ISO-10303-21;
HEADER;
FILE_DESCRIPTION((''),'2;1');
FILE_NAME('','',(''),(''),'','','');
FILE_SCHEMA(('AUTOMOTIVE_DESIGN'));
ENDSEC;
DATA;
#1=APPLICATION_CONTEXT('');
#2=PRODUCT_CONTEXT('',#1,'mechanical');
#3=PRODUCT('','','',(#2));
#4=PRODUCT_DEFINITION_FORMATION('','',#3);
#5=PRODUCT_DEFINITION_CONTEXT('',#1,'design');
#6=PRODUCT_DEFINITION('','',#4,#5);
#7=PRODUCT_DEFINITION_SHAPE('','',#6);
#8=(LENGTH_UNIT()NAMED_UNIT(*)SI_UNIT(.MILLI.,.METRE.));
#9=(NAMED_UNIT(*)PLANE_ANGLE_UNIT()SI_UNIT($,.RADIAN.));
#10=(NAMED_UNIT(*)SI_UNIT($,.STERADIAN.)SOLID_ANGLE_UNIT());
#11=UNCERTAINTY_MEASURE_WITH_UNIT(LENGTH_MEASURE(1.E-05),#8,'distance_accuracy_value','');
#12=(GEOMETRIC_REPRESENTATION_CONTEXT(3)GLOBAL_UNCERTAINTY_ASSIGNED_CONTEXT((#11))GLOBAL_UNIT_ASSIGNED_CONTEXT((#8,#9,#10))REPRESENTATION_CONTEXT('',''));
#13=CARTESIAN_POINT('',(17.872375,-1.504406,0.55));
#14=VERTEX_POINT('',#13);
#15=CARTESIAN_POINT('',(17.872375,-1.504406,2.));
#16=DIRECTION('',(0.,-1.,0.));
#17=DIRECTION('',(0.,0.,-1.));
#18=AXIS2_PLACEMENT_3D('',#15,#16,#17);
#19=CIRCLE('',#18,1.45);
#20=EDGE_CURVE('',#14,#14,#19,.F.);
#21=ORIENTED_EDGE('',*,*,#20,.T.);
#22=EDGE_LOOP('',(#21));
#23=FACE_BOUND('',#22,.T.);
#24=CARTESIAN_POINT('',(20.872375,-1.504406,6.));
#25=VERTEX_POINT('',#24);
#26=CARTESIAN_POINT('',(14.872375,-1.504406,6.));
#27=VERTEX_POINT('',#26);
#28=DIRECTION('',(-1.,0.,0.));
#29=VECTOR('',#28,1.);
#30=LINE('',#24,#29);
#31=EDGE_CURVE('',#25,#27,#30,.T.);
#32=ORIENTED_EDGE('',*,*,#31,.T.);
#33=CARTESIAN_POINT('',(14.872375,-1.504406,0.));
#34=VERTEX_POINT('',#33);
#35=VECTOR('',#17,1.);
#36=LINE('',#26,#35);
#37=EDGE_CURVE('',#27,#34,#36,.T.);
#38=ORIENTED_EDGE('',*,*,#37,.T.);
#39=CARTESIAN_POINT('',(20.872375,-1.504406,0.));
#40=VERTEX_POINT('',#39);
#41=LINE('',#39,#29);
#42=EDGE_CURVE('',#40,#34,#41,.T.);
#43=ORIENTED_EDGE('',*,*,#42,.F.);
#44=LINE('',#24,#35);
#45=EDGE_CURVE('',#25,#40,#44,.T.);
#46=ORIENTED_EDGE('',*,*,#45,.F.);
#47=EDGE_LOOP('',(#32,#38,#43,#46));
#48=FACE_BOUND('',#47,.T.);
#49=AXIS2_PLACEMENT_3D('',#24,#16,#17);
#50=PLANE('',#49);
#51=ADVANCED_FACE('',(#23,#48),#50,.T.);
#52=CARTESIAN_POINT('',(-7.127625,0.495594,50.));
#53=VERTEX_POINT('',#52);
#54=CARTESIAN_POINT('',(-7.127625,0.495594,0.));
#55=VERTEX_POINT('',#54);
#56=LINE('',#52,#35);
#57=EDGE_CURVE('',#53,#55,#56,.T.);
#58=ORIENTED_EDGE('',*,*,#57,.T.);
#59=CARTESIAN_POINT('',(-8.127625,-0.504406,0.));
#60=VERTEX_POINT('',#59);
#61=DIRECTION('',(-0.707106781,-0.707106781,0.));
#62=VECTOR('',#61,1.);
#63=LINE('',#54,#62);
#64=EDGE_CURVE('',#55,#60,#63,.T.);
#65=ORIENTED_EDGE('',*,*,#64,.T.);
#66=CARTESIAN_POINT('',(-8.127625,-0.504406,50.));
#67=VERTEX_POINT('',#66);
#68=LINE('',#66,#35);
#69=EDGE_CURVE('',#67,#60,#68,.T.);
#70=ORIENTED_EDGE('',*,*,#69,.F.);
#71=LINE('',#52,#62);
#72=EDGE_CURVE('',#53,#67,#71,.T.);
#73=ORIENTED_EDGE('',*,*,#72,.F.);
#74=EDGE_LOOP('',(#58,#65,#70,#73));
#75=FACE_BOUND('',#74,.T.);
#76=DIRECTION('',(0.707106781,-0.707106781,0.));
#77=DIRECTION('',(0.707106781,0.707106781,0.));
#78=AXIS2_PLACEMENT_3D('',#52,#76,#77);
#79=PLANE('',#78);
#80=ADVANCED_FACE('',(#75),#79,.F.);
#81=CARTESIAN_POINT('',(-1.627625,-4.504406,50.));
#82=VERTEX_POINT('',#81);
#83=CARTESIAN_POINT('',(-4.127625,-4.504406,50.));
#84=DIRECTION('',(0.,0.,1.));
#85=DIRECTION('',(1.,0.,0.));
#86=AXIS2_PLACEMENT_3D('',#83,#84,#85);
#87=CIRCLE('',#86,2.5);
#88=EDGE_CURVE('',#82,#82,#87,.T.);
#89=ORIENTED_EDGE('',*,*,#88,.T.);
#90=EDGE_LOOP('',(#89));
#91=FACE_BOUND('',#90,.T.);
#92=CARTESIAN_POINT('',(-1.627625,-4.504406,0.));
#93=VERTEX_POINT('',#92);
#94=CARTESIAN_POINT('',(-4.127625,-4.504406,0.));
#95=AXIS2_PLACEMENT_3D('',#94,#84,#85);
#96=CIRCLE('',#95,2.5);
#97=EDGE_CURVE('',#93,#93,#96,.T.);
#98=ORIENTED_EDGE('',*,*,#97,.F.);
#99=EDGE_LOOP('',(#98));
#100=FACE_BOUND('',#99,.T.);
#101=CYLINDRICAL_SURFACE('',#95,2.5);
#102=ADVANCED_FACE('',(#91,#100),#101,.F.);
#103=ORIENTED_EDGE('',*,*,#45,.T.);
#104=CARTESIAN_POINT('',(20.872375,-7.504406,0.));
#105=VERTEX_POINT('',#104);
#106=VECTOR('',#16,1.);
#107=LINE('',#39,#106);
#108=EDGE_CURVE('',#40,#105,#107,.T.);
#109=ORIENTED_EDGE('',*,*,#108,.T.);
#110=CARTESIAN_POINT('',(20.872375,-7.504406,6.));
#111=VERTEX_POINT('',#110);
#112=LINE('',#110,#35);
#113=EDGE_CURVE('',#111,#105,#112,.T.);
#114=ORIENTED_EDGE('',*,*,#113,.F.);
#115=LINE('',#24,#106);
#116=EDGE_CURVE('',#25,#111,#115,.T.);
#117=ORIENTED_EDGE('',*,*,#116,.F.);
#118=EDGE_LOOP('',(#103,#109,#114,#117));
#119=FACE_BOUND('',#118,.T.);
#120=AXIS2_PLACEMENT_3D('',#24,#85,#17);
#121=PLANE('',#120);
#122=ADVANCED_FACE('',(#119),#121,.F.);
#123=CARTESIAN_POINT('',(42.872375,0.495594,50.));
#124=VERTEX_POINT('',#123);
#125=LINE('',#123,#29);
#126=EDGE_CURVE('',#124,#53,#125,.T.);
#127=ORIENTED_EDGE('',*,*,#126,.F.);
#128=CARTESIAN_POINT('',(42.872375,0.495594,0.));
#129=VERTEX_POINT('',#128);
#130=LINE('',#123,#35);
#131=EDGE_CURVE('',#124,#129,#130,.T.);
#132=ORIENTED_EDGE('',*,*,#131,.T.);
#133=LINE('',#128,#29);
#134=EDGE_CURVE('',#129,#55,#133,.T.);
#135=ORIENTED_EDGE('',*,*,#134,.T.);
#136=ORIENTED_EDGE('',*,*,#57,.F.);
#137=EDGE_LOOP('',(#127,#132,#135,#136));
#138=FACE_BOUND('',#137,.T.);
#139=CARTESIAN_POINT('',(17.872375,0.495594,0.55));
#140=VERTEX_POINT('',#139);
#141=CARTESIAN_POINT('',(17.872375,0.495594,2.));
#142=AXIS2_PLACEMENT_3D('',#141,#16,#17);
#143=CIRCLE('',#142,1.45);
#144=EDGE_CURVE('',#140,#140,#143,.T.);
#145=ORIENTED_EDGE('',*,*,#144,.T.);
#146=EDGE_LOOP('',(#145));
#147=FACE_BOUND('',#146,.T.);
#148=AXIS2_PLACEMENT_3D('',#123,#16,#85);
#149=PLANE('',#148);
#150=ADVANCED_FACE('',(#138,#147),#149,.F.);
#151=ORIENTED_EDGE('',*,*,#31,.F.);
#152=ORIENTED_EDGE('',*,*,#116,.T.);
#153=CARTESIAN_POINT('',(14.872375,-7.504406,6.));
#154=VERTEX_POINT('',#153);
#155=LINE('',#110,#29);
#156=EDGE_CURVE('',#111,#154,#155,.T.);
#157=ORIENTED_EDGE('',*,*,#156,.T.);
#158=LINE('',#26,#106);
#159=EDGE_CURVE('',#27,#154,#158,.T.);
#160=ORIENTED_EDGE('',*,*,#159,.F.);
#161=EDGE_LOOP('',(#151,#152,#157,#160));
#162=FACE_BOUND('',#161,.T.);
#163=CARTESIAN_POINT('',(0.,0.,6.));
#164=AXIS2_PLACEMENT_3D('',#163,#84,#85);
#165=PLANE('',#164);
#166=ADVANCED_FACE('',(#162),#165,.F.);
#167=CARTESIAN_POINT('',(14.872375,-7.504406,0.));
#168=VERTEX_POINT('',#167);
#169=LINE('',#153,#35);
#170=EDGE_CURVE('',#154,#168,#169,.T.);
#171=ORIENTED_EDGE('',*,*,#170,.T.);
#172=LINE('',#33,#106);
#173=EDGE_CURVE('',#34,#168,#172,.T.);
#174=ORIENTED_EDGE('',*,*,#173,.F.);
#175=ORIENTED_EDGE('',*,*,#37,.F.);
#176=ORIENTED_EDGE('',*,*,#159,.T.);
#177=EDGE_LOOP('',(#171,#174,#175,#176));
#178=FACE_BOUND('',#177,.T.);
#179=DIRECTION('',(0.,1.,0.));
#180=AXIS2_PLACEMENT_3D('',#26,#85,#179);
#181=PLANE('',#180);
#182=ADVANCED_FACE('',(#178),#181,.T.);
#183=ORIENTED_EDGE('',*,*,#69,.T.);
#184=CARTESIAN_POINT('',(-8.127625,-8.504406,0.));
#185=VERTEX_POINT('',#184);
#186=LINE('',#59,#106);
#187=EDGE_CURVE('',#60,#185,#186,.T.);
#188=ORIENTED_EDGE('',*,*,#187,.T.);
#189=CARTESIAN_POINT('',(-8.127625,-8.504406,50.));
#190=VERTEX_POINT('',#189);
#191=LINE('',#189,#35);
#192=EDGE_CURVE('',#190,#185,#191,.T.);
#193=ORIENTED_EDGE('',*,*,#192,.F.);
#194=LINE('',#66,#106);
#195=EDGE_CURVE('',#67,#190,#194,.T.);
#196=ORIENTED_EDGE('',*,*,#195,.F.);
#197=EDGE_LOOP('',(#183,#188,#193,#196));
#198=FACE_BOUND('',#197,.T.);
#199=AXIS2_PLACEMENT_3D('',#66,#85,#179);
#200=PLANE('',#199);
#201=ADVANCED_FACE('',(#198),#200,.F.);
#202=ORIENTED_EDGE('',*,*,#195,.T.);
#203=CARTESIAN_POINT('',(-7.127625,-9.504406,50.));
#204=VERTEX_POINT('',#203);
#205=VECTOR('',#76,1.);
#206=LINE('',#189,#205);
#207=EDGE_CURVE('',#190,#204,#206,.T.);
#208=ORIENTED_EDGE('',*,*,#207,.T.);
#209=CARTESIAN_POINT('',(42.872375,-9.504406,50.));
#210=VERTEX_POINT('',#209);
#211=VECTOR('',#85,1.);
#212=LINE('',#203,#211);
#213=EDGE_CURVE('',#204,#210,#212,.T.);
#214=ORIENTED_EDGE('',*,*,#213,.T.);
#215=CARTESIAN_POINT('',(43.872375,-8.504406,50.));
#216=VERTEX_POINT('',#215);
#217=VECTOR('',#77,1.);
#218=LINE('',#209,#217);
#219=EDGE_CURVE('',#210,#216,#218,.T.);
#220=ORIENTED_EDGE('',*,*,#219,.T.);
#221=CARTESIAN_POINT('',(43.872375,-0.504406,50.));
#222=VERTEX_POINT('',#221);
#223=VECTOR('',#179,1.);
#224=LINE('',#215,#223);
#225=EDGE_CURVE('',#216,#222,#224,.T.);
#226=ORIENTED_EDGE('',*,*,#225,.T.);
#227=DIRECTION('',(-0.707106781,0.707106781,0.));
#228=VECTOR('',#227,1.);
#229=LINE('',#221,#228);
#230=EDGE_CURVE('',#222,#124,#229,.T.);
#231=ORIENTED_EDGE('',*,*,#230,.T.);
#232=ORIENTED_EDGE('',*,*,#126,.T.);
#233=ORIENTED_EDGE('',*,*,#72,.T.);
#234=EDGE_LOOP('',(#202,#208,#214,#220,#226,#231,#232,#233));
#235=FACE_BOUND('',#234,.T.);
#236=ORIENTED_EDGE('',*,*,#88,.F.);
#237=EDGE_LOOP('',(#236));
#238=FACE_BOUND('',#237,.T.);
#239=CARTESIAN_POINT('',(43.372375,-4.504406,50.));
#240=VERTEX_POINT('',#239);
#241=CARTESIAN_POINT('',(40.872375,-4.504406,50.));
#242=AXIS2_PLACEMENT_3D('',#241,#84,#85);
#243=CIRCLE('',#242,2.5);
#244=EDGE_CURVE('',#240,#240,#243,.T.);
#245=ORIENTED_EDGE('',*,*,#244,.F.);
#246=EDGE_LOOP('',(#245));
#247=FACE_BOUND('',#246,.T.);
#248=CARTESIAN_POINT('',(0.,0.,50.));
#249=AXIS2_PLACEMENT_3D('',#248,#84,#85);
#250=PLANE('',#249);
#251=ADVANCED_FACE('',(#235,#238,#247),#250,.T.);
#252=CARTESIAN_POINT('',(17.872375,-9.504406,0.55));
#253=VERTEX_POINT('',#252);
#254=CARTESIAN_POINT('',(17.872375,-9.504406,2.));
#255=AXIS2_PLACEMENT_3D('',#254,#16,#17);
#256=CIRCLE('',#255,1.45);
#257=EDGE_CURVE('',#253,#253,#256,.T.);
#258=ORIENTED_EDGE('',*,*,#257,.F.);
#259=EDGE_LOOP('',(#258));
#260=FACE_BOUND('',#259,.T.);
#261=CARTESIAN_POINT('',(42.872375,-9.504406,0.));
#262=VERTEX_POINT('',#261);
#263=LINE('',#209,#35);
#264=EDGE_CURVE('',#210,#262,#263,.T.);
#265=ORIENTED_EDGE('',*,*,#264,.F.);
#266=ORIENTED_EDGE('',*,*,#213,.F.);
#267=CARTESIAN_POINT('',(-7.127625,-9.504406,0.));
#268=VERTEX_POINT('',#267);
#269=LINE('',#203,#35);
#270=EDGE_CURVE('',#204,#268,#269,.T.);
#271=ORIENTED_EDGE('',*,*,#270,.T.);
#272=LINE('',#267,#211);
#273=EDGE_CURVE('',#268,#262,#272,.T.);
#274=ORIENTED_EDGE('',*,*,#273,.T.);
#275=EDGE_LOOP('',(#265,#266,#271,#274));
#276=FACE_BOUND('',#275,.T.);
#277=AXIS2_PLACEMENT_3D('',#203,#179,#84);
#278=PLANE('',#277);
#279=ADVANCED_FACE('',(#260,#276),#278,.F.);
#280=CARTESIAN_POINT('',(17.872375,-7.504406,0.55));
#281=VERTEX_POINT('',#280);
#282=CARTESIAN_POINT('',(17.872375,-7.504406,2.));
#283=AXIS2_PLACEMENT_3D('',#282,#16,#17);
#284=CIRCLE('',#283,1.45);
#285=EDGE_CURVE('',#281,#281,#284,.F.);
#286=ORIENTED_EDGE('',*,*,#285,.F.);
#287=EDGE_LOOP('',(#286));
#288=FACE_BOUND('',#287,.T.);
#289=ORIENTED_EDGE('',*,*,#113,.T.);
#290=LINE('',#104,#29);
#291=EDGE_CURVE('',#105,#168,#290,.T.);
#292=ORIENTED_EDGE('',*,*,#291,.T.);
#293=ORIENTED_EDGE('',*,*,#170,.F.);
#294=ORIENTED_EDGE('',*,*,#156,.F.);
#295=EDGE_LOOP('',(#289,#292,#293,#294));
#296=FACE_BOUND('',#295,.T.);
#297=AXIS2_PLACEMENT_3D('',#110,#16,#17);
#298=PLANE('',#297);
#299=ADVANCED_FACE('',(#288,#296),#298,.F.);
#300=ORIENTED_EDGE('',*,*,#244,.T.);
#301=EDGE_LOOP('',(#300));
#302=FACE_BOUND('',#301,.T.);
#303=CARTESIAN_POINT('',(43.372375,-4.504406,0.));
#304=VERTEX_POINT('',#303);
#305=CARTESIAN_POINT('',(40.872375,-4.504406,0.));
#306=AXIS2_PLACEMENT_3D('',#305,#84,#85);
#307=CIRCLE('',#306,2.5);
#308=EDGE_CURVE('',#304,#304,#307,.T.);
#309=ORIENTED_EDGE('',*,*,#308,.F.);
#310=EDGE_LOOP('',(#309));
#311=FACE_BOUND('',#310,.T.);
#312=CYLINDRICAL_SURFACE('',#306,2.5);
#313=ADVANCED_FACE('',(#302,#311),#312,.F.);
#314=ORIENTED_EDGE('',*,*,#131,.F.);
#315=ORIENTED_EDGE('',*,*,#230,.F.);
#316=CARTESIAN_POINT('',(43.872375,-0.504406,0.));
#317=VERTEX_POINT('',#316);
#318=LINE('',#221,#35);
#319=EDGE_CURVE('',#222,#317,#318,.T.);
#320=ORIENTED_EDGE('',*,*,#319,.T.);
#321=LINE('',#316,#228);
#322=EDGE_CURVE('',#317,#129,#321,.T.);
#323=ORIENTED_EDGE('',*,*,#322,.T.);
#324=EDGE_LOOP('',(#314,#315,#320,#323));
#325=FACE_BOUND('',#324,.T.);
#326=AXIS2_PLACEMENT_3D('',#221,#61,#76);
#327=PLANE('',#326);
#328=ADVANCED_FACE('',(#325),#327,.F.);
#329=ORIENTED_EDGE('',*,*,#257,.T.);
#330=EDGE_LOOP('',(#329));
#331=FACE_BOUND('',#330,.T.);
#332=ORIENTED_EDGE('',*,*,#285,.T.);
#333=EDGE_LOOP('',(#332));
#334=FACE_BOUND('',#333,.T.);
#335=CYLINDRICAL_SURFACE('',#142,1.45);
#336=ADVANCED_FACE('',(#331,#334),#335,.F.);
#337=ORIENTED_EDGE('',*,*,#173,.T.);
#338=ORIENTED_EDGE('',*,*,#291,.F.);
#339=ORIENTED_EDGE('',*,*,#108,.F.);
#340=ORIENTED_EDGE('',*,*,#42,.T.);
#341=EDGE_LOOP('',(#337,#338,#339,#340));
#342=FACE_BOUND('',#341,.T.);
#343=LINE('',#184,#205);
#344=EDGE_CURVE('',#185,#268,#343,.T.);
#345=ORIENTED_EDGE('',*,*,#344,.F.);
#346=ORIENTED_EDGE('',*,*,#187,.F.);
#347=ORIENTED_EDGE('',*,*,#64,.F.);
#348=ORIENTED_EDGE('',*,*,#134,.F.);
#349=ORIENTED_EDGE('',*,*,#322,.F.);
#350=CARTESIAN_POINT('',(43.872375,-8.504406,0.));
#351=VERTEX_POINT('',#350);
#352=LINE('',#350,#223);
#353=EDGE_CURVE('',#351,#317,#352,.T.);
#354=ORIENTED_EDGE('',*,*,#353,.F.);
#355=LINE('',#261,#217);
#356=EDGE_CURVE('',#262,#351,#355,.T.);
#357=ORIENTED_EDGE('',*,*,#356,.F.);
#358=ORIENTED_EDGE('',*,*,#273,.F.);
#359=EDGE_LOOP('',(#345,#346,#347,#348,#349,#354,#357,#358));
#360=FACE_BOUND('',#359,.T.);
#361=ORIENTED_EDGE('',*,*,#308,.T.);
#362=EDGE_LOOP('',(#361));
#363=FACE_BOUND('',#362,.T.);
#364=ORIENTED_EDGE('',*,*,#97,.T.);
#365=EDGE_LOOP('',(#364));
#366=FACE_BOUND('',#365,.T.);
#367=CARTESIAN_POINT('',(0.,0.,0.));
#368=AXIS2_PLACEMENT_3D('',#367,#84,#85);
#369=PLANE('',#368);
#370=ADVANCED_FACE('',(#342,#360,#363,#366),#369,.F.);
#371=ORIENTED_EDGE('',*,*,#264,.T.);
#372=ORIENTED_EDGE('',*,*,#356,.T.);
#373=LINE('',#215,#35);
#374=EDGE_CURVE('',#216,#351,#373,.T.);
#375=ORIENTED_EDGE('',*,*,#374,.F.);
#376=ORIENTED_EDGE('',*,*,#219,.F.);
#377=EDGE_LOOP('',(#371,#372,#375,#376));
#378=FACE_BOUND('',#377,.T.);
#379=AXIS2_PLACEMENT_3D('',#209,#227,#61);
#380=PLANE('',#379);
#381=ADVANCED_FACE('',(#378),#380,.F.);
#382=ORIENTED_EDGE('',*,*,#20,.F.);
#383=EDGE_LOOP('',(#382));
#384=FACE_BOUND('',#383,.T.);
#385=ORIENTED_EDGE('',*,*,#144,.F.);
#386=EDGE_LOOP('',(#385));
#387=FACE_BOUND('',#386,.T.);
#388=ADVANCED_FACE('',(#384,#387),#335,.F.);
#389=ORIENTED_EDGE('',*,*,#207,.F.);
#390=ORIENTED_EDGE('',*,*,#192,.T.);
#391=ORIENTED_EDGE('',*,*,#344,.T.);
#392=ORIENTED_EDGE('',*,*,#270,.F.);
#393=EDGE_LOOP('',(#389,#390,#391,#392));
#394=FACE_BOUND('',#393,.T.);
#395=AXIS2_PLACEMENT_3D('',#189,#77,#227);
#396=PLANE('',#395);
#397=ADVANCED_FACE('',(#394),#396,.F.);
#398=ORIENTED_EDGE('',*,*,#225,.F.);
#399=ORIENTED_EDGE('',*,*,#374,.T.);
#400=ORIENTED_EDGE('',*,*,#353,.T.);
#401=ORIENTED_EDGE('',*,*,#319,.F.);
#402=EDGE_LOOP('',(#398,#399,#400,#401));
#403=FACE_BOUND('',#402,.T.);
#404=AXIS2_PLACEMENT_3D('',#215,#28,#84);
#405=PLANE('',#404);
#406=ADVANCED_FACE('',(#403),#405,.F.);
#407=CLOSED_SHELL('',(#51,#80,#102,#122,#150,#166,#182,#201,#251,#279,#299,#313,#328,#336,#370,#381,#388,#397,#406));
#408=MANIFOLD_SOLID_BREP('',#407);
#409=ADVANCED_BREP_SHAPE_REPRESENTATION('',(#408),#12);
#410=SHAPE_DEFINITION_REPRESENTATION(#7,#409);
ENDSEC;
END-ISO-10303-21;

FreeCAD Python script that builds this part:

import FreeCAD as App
import Part
import Sketcher

V = App.Vector
Q = App.Units.Quantity


def add_polygon(sketch, points):
    """Adds a closed chain of lines whose ends are joined by coincident constraints."""
    first, n = sketch.GeometryCount, len(points)
    for a, b in zip(points, points[1:] + points[:1]):
        sketch.addGeometry(Part.LineSegment(App.Vector(*a, 0), App.Vector(*b, 0)), False)
    for i in range(n):
        sketch.addConstraint(Sketcher.Constraint("Coincident", first + i, 2, first + (i + 1) % n, 1))

doc = App.newDocument("Part")
body = doc.addObject("PartDesign::Body", "Body")

sketch1 = body.newObject("Sketcher::SketchObject", "Sketch")
sketch1.AttachmentSupport = (doc.getObject("XY_Plane"), [""])
sketch1.MapMode = "FlatFace"
add_polygon(sketch1, [(42.872375, -9.504406), (43.872375, -8.504406), (43.872375, -0.504406), (42.872375, 0.495594), (-7.127625, 0.495594), (-8.127625, -0.504406), (-8.127625, -8.504406), (-7.127625, -9.504406)])
sketch1.addConstraint(Sketcher.Constraint("Vertical", 1))
sketch1.addConstraint(Sketcher.Constraint("Horizontal", 3))
sketch1.addConstraint(Sketcher.Constraint("Vertical", 5))
sketch1.addConstraint(Sketcher.Constraint("Horizontal", 7))
sketch1.addConstraint(Sketcher.Constraint("Perpendicular", 0, 2))
sketch1.addConstraint(Sketcher.Constraint("Perpendicular", 2, 4))
sketch1.addConstraint(Sketcher.Constraint("Perpendicular", 4, 6))
sketch1.addConstraint(Sketcher.Constraint("Horizontal", 1, 2, 4, 2))
sketch1.addConstraint(Sketcher.Constraint("Horizontal", 0, 2, 5, 2))
sketch1.addConstraint(Sketcher.Constraint("Vertical", 3, 2, 6, 2))
sketch1.addConstraint(Sketcher.Constraint("Vertical", 2, 2, 7, 2))
sketch1.addConstraint(Sketcher.Constraint("DistanceX", 3, 2, 3, 1, Q("50 mm")))
sketch1.addConstraint(Sketcher.Constraint("DistanceY", 1, 1, 1, 2, Q("8 mm")))
sketch1.addConstraint(Sketcher.Constraint("DistanceX", 2, 2, 1, 2, Q("1 mm")))
sketch1.addConstraint(Sketcher.Constraint("DistanceX", -1, 1, 0, 2, Q("43.872375 mm")))
sketch1.addConstraint(Sketcher.Constraint("DistanceY", 0, 2, -1, 1, Q("8.504406 mm")))
pad1 = body.newObject("PartDesign::Pad", "Pad")
pad1.Profile = sketch1
pad1.Length = 50

sketch2 = body.newObject("Sketcher::SketchObject", "Sketch001")
sketch2.AttachmentSupport = (doc.getObject("XY_Plane"), [""])
sketch2.MapMode = "FlatFace"
sketch2.AttachmentOffset = App.Placement(V(0, 0, 50), App.Rotation())
sketch2.addGeometry(Part.Circle(V(-4.127625, -4.504406, 0), V(0, 0, 1), 2.5), False)
sketch2.addGeometry(Part.Circle(V(40.872375, -4.504406, 0), V(0, 0, 1), 2.5), False)
sketch2.addConstraint(Sketcher.Constraint("Equal", 0, 1))
sketch2.addConstraint(Sketcher.Constraint("Horizontal", 0, 3, 1, 3))
sketch2.addConstraint(Sketcher.Constraint("Diameter", 0, Q("5 mm")))
sketch2.addConstraint(Sketcher.Constraint("DistanceX", 0, 3, 1, 3, Q("45 mm")))
sketch2.addConstraint(Sketcher.Constraint("DistanceX", 0, 3, -1, 1, Q("4.127625 mm")))
sketch2.addConstraint(Sketcher.Constraint("DistanceY", 0, 3, -1, 1, Q("4.504406 mm")))
pocket1 = body.newObject("PartDesign::Pocket", "Pocket")
pocket1.Profile = sketch2
pocket1.Type = "ThroughAll"

sketch3 = body.newObject("Sketcher::SketchObject", "Sketch002")
sketch3.AttachmentSupport = (doc.getObject("XZ_Plane"), [""])
sketch3.MapMode = "FlatFace"
sketch3.AttachmentOffset = App.Placement(V(0, 0, 9.504406), App.Rotation())
sketch3.addGeometry(Part.Circle(V(17.872375, 2, 0), V(0, 0, 1), 1.45), False)
sketch3.addConstraint(Sketcher.Constraint("Diameter", 0, Q("2.9 mm")))
sketch3.addConstraint(Sketcher.Constraint("DistanceY", -1, 1, 0, 3, Q("2 mm")))
sketch3.addConstraint(Sketcher.Constraint("DistanceX", -1, 1, 0, 3, Q("17.872375 mm")))
pocket2 = body.newObject("PartDesign::Pocket", "Pocket001")
pocket2.Profile = sketch3
pocket2.Type = "ThroughAll"

sketch4 = body.newObject("Sketcher::SketchObject", "Sketch003")
sketch4.AttachmentSupport = (doc.getObject("XY_Plane"), [""])
sketch4.MapMode = "FlatFace"
add_polygon(sketch4, [(20.872375, -1.504406), (20.872375, -7.504406), (14.872375, -7.504406), (14.872375, -1.504406)])
sketch4.addConstraint(Sketcher.Constraint("Vertical", 0))
sketch4.addConstraint(Sketcher.Constraint("Horizontal", 1))
sketch4.addConstraint(Sketcher.Constraint("Vertical", 2))
sketch4.addConstraint(Sketcher.Constraint("Horizontal", 3))
sketch4.addConstraint(Sketcher.Constraint("Equal", 3, 0))
sketch4.addConstraint(Sketcher.Constraint("DistanceX", 1, 2, 1, 1, Q("6 mm")))
sketch4.addConstraint(Sketcher.Constraint("DistanceX", -1, 1, 0, 2, Q("20.872375 mm")))
sketch4.addConstraint(Sketcher.Constraint("DistanceY", 0, 2, -1, 1, Q("7.504406 mm")))
pocket3 = body.newObject("PartDesign::Pocket", "Pocket002")
pocket3.Profile = sketch4
pocket3.Length = 6
pocket3.Reversed = True

doc.recompute()
